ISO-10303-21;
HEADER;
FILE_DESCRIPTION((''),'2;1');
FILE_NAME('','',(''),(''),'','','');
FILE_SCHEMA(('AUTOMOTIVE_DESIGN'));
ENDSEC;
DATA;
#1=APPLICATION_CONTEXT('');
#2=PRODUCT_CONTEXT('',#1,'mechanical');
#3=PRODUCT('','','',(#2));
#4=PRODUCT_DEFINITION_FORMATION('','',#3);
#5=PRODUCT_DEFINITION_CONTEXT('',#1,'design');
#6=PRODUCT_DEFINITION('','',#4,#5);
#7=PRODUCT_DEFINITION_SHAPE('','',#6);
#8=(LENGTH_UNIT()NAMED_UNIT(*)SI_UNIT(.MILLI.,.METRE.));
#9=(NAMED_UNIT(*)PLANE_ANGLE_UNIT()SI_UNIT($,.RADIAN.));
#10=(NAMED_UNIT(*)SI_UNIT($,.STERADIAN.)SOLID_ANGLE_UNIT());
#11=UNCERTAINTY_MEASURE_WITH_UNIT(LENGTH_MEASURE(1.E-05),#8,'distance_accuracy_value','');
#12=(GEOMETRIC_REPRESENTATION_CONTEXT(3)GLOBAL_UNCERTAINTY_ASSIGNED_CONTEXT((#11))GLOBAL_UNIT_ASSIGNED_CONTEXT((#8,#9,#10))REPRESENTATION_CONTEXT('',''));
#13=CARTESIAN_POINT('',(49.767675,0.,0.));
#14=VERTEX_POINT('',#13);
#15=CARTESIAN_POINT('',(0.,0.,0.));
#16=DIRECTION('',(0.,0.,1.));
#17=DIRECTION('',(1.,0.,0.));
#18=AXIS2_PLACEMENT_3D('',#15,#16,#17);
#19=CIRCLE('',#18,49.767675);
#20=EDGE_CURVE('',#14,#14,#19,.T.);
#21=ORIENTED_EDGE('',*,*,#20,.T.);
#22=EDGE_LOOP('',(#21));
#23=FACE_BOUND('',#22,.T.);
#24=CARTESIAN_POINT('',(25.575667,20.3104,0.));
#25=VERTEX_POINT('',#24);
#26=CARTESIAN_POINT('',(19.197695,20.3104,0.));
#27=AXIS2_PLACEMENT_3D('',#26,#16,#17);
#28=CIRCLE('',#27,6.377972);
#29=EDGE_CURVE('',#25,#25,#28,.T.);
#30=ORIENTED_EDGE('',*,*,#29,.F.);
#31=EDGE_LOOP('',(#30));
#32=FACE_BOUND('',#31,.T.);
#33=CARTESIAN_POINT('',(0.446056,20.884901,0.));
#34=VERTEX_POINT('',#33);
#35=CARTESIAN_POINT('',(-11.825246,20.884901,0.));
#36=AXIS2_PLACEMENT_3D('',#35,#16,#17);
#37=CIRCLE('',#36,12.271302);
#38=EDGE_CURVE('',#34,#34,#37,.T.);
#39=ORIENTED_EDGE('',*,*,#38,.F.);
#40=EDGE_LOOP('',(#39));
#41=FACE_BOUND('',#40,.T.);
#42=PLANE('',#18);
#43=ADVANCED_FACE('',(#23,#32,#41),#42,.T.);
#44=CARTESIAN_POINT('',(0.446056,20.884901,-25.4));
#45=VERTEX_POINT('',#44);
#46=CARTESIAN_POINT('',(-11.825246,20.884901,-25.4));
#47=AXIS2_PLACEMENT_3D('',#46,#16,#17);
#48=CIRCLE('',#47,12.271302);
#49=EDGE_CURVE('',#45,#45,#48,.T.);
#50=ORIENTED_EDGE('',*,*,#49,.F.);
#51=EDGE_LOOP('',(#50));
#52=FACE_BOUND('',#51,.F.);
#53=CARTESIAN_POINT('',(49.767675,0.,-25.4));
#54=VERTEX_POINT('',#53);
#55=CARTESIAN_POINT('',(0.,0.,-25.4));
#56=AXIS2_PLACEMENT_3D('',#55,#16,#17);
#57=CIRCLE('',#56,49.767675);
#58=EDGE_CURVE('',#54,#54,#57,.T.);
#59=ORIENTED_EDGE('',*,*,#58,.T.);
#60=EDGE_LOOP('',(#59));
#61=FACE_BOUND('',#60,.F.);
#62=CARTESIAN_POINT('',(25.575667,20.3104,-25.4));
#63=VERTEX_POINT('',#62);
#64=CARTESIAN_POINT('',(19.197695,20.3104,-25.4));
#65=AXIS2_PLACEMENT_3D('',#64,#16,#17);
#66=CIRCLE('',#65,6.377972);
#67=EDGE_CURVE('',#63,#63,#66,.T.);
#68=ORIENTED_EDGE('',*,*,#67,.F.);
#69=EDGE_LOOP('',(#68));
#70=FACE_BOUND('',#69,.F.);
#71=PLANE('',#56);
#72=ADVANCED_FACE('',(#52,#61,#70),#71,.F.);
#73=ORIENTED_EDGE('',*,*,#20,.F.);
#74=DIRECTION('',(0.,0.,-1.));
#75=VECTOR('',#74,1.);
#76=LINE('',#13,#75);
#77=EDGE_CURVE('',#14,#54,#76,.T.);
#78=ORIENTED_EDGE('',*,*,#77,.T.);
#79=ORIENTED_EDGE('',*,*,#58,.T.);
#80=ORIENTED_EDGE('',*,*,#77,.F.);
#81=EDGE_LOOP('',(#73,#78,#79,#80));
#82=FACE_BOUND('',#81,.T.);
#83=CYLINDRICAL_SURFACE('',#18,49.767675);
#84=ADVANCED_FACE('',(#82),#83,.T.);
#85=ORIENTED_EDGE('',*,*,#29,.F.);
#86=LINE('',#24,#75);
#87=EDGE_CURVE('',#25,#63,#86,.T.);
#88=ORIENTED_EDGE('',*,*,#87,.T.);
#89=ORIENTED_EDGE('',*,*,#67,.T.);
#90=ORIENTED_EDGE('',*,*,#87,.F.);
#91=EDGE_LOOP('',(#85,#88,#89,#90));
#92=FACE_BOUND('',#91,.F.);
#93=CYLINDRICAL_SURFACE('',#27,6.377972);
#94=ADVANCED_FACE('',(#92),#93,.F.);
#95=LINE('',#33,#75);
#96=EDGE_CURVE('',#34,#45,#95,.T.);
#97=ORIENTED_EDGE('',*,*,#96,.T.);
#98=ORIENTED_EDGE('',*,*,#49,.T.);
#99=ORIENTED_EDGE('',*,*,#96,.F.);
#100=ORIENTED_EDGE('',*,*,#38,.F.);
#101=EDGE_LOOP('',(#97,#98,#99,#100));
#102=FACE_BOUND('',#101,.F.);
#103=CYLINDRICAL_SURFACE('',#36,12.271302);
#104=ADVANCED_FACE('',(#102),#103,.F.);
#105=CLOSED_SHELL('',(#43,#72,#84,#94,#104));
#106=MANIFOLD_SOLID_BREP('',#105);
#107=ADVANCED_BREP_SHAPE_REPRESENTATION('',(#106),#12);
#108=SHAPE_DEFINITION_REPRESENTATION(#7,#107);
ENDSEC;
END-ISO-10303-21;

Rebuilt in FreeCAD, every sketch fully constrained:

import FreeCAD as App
import Part
import Sketcher
from FreeCAD import Vector
Q = App.Units.Quantity

doc = App.newDocument("Part")
body = doc.addObject("PartDesign::Body", "Body")

sketch1 = body.newObject("Sketcher::SketchObject", "Sketch")
sketch1.AttachmentSupport = (doc.getObject("XY_Plane"), [""])
sketch1.MapMode = "FlatFace"
sketch1.addGeometry([
    Part.Circle(Vector(0, 0, 0), Vector(0, 0, 1), 50),
    Part.Circle(Vector(19, 20, 0), Vector(0, 0, 1), 6),
    Part.Circle(Vector(-12, 21, 0), Vector(0, 0, 1), 12),
], False)
sketch1.addConstraint([
    Sketcher.Constraint("Coincident", 0, 3, -1, 1),
    Sketcher.Constraint("Diameter", 0, Q("99.53535 mm")),
    Sketcher.Constraint("Diameter", 1, Q("12.755944 mm")),
    Sketcher.Constraint("Diameter", 2, Q("24.542604 mm")),
    Sketcher.Constraint("DistanceY", -1, 1, 1, 3, Q("20.3104 mm")),
    Sketcher.Constraint("DistanceY", -1, 1, 2, 3, Q("20.884901 mm")),
    Sketcher.Constraint("DistanceX", 2, 3, 1, 3, Q("31.022941 mm")),
    Sketcher.Constraint("DistanceX", -1, 1, 1, 3, Q("19.197695 mm")),
])
pad1 = body.newObject("PartDesign::Pad", "Pad")
pad1.Profile = sketch1
pad1.Length = Q("1 in")
pad1.Reversed = True

doc.recompute()
